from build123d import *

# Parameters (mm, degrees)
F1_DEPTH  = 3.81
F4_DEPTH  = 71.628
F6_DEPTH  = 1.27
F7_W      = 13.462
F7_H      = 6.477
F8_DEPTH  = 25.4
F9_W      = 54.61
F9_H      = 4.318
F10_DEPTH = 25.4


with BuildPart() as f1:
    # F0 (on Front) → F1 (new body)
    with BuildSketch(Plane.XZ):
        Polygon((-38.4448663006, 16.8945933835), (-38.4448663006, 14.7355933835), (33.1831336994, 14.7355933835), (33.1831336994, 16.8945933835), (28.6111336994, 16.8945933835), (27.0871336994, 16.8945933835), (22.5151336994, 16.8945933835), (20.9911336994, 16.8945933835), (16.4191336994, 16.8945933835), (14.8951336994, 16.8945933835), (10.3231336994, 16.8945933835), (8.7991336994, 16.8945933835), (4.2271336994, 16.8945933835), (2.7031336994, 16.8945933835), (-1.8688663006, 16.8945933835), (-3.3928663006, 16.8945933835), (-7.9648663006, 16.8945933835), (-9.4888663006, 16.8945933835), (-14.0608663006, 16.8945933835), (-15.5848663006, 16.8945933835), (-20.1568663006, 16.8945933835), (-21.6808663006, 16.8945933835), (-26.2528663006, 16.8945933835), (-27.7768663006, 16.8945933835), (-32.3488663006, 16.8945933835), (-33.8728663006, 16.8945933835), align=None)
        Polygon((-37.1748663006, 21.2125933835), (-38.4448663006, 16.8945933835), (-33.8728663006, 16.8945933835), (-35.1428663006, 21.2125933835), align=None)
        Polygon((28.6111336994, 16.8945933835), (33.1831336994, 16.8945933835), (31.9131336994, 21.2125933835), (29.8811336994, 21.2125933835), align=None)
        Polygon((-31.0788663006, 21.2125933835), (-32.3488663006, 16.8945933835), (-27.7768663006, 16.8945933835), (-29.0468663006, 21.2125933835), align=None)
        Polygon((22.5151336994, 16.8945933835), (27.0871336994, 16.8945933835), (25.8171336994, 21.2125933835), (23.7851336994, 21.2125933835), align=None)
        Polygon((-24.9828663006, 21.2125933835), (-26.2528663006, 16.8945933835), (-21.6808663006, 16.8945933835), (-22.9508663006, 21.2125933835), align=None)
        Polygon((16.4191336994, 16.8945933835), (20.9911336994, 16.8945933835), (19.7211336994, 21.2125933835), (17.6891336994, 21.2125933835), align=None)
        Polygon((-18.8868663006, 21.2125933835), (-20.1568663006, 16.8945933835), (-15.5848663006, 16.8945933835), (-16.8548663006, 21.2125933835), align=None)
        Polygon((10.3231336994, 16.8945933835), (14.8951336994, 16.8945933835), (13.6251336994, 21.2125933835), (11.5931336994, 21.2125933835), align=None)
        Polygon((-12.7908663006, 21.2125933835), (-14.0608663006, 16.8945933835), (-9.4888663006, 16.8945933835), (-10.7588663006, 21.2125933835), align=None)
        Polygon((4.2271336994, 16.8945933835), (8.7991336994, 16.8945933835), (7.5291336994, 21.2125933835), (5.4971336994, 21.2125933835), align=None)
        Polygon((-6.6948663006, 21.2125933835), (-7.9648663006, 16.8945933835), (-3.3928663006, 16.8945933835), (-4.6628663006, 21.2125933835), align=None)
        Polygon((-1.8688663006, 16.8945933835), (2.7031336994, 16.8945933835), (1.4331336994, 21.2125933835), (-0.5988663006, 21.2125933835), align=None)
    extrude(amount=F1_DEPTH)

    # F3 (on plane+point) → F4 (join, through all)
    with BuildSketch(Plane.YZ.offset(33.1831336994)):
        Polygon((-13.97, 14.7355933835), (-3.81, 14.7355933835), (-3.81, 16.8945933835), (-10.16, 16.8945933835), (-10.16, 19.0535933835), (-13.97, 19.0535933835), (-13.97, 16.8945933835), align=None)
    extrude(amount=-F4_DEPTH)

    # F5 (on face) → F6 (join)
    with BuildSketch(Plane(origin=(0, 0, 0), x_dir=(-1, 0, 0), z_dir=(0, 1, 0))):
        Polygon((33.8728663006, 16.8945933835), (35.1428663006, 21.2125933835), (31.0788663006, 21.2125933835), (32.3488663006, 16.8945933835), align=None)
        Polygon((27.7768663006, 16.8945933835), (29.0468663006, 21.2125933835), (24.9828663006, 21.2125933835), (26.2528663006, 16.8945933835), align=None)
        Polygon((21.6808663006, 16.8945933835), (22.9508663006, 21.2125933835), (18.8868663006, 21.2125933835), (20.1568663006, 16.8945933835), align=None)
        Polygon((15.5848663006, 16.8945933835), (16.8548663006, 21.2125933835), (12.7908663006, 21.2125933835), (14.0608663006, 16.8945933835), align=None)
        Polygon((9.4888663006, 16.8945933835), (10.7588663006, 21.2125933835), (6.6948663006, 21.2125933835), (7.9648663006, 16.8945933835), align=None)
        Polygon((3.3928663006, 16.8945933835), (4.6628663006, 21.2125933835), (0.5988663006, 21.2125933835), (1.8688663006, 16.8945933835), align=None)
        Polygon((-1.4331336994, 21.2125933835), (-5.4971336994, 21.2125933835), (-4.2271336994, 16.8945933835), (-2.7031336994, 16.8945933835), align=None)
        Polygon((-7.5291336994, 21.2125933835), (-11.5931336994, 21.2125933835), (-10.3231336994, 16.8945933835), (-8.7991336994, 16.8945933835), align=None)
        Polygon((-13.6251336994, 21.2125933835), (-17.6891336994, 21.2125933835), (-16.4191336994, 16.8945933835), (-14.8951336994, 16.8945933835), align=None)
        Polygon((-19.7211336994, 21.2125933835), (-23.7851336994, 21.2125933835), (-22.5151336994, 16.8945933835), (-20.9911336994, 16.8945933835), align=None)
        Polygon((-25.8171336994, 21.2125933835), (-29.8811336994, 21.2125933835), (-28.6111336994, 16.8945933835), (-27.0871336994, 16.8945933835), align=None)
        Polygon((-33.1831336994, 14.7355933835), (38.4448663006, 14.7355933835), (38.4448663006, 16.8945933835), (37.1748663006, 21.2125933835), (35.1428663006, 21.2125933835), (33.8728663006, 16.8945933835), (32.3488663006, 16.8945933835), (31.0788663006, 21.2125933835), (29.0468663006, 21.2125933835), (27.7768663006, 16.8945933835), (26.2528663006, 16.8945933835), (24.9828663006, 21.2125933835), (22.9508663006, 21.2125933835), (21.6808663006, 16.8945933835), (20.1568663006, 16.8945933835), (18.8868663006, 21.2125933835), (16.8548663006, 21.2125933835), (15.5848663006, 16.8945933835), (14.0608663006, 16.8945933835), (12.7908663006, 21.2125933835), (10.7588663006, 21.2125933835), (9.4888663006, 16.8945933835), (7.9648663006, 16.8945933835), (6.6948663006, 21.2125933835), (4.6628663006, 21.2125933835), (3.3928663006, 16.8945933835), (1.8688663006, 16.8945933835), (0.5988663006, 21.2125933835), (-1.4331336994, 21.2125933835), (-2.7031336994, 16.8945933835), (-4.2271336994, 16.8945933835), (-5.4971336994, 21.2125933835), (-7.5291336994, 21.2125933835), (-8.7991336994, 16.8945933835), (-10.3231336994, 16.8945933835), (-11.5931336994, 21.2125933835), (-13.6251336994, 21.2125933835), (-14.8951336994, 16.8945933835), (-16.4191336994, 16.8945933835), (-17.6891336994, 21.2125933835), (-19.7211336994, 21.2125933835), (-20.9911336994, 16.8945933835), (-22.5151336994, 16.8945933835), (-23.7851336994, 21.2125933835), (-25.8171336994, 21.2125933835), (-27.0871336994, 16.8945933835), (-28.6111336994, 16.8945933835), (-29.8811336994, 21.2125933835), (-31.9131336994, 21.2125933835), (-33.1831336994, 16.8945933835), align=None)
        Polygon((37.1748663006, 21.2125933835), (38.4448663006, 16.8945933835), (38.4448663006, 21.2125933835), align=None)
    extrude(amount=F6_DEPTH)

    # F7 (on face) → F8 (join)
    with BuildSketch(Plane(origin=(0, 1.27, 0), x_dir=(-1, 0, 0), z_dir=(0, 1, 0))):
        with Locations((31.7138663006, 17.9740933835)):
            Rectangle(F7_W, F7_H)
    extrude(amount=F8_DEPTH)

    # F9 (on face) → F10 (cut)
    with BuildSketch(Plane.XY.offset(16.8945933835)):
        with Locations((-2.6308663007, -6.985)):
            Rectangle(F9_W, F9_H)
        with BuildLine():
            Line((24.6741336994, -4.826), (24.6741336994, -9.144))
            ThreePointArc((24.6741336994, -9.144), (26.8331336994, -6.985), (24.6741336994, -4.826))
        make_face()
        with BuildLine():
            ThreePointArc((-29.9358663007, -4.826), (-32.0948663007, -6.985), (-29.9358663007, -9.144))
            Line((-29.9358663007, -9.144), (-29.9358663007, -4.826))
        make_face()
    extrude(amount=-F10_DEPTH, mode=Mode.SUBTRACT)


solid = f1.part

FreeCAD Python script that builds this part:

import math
import FreeCAD as App
import Part
import Sketcher
from FreeCAD import Vector
Q = App.Units.Quantity


def add_polygon(sketch, points):
    """Adds a closed chain of lines whose ends are joined by coincident constraints."""
    first, n = sketch.GeometryCount, len(points)
    for a, b in zip(points, points[1:] + points[:1]):
        sketch.addGeometry(Part.LineSegment(App.Vector(*a, 0), App.Vector(*b, 0)), False)
    for i in range(n):
        sketch.addConstraint(Sketcher.Constraint("Coincident", first + i, 2, first + (i + 1) % n, 1))

doc = App.newDocument("Part")
body = doc.addObject("PartDesign::Body", "Body")

# Sketch on XZ plane
sketch1 = body.newObject("Sketcher::SketchObject", "Sketch")
sketch1.AttachmentSupport = (doc.getObject("XZ_Plane"), [""])
sketch1.MapMode = "FlatFace"
add_polygon(sketch1, [(-38.4, 16.9), (-38.4, 14.7), (33.2, 14.7), (33.2, 16.9), (31.9, 21.2), (29.9, 21.2), (28.6, 16.9), (27.1, 16.9), (25.8, 21.2), (23.8, 21.2), (22.5, 16.9), (21, 16.9), (19.7, 21.2), (17.7, 21.2), (16.4, 16.9), (14.9, 16.9), (13.6, 21.2), (11.6, 21.2), (10.3, 16.9), (8.8, 16.9), (7.5, 21.2), (5.5, 21.2), (4.2, 16.9), (2.7, 16.9), (1.4, 21.2), (-0.6, 21.2), (-1.9, 16.9), (-3.4, 16.9), (-4.7, 21.2), (-6.7, 21.2), (-8, 16.9), (-9.5, 16.9), (-10.8, 21.2), (-12.8, 21.2), (-14.1, 16.9), (-15.6, 16.9), (-16.9, 21.2), (-18.9, 21.2), (-20.2, 16.9), (-21.7, 16.9), (-23, 21.2), (-25, 21.2), (-26.3, 16.9), (-27.8, 16.9), (-29, 21.2), (-31.1, 21.2), (-32.3, 16.9), (-33.9, 16.9), (-35.1, 21.2), (-37.2, 21.2)])  # lines 0-49
sketch1.addConstraint([
    Sketcher.Constraint("Vertical", 0),
    Sketcher.Constraint("Horizontal", 1),
    Sketcher.Constraint("Vertical", 2),
    Sketcher.Constraint("Horizontal", 4),
    Sketcher.Constraint("Horizontal", 6),
    Sketcher.Constraint("Horizontal", 8),
    Sketcher.Constraint("Horizontal", 10),
    Sketcher.Constraint("Horizontal", 12),
    Sketcher.Constraint("Horizontal", 14),
    Sketcher.Constraint("Horizontal", 16),
    Sketcher.Constraint("Horizontal", 18),
    Sketcher.Constraint("Horizontal", 20),
    Sketcher.Constraint("Horizontal", 22),
    Sketcher.Constraint("Horizontal", 24),
    Sketcher.Constraint("Horizontal", 26),
    Sketcher.Constraint("Horizontal", 28),
    Sketcher.Constraint("Horizontal", 30),
    Sketcher.Constraint("Horizontal", 32),
    Sketcher.Constraint("Horizontal", 34),
    Sketcher.Constraint("Horizontal", 36),
    Sketcher.Constraint("Horizontal", 38),
    Sketcher.Constraint("Horizontal", 40),
    Sketcher.Constraint("Horizontal", 42),
    Sketcher.Constraint("Horizontal", 44),
    Sketcher.Constraint("Horizontal", 46),
    Sketcher.Constraint("Horizontal", 48),
    Sketcher.Constraint("Parallel", 3, 7),
    Sketcher.Constraint("Parallel", 5, 9),
    Sketcher.Constraint("Parallel", 7, 11),
    Sketcher.Constraint("Parallel", 9, 13),
    Sketcher.Constraint("Parallel", 11, 15),
    Sketcher.Constraint("Parallel", 13, 17),
    Sketcher.Constraint("Parallel", 15, 19),
    Sketcher.Constraint("Parallel", 17, 21),
    Sketcher.Constraint("Parallel", 19, 23),
    Sketcher.Constraint("Parallel", 21, 25),
    Sketcher.Constraint("Parallel", 23, 27),
    Sketcher.Constraint("Parallel", 25, 29),
    Sketcher.Constraint("Parallel", 27, 31),
    Sketcher.Constraint("Parallel", 29, 33),
    Sketcher.Constraint("Parallel", 31, 35),
    Sketcher.Constraint("Parallel", 33, 37),
    Sketcher.Constraint("Parallel", 35, 39),
    Sketcher.Constraint("Parallel", 37, 41),
    Sketcher.Constraint("Parallel", 39, 43),
    Sketcher.Constraint("Parallel", 41, 45),
    Sketcher.Constraint("Parallel", 43, 47),
    Sketcher.Constraint("Parallel", 45, 49),
    Sketcher.Constraint("Horizontal", 2, 2, 5, 2),
    Sketcher.Constraint("Horizontal", 4, 2, 7, 2),
    Sketcher.Constraint("Horizontal", 6, 2, 9, 2),
    Sketcher.Constraint("Horizontal", 8, 2, 11, 2),
    Sketcher.Constraint("Horizontal", 10, 2, 13, 2),
    Sketcher.Constraint("Horizontal", 12, 2, 15, 2),
    Sketcher.Constraint("Horizontal", 14, 2, 17, 2),
    Sketcher.Constraint("Horizontal", 16, 2, 19, 2),
    Sketcher.Constraint("Horizontal", 18, 2, 21, 2),
    Sketcher.Constraint("Horizontal", 20, 2, 23, 2),
    Sketcher.Constraint("Horizontal", 22, 2, 25, 2),
    Sketcher.Constraint("Horizontal", 24, 2, 27, 2),
    Sketcher.Constraint("Horizontal", 26, 2, 29, 2),
    Sketcher.Constraint("Horizontal", 28, 2, 31, 2),
    Sketcher.Constraint("Horizontal", 30, 2, 33, 2),
    Sketcher.Constraint("Horizontal", 32, 2, 35, 2),
    Sketcher.Constraint("Horizontal", 34, 2, 37, 2),
    Sketcher.Constraint("Horizontal", 36, 2, 39, 2),
    Sketcher.Constraint("Horizontal", 38, 2, 41, 2),
    Sketcher.Constraint("Horizontal", 40, 2, 43, 2),
    Sketcher.Constraint("Horizontal", 42, 2, 45, 2),
    Sketcher.Constraint("Horizontal", 44, 2, 47, 2),
    Sketcher.Constraint("Horizontal", 46, 2, 49, 2),
    Sketcher.Constraint("Equal", 4, 8),
    Sketcher.Constraint("Equal", 6, 10),
    Sketcher.Constraint("Equal", 8, 12),
    Sketcher.Constraint("Equal", 10, 14),
    Sketcher.Constraint("Equal", 12, 16),
    Sketcher.Constraint("Equal", 14, 18),
    Sketcher.Constraint("Equal", 16, 20),
    Sketcher.Constraint("Equal", 18, 22),
    Sketcher.Constraint("Equal", 20, 24),
    Sketcher.Constraint("Equal", 22, 26),
    Sketcher.Constraint("Equal", 24, 28),
    Sketcher.Constraint("Equal", 26, 30),
    Sketcher.Constraint("Equal", 28, 32),
    Sketcher.Constraint("Equal", 30, 34),
    Sketcher.Constraint("Equal", 32, 36),
    Sketcher.Constraint("Equal", 34, 38),
    Sketcher.Constraint("Equal", 36, 40),
    Sketcher.Constraint("Equal", 38, 42),
    Sketcher.Constraint("Equal", 40, 44),
    Sketcher.Constraint("Equal", 42, 46),
    Sketcher.Constraint("Equal", 44, 48),
    Sketcher.Constraint("Equal", 3, 5),
    Sketcher.Constraint("DistanceX", 1, 1, 1, 2, Q("2.82 in")),
    Sketcher.Constraint("DistanceX", 4, 2, 4, 1, Q("0.08 in")),
    Sketcher.Constraint("DistanceX", 6, 2, 6, 1, Q("0.06 in")),
    Sketcher.Constraint("DistanceY", 0, 2, 0, 1, Q("0.085 in")),
    Sketcher.Constraint("DistanceY", 2, 2, 3, 2, Q("0.17 in")),
    Sketcher.Constraint("DistanceX", 0, 2, -1, 1, Q("38.444866 mm")),
    Sketcher.Constraint("DistanceY", -1, 1, 0, 2, Q("14.735593 mm")),
])
pad1 = body.newObject("PartDesign::Pad", "Pad")
pad1.Profile = sketch1
pad1.Length = Q("0.15 in")

# Sketch on YZ plane
sketch2 = body.newObject("Sketcher::SketchObject", "Sketch001")
sketch2.AttachmentSupport = (doc.getObject("YZ_Plane"), [""])
sketch2.MapMode = "FlatFace"
sketch2.AttachmentOffset = App.Placement(Vector(0, 0, 33.183134), App.Rotation())
add_polygon(sketch2, [(-14, 14.7), (-3.8, 14.7), (-3.8, 16.9), (-10.2, 16.9), (-10.2, 19.1), (-14, 19.1)])  # lines 0-5
sketch2.addConstraint([
    Sketcher.Constraint("Horizontal", 0),
    Sketcher.Constraint("Vertical", 1),
    Sketcher.Constraint("Horizontal", 2),
    Sketcher.Constraint("Vertical", 3),
    Sketcher.Constraint("Horizontal", 4),
    Sketcher.Constraint("Vertical", 5),
    Sketcher.Constraint("Equal", 1, 3),
    Sketcher.Constraint("DistanceX", 0, 1, 0, 2, Q("0.4 in")),
    Sketcher.Constraint("DistanceX", 2, 2, 2, 1, Q("0.25 in")),
    Sketcher.Constraint("DistanceY", 5, 2, 5, 1, Q("0.17 in")),
    Sketcher.Constraint("DistanceX", 2, 2, -1, 1, Q("0.4 in")),
    Sketcher.Constraint("DistanceY", -1, 1, 0, 2, Q("14.735593 mm")),
])
pad2 = body.newObject("PartDesign::Pad", "Pad001")
pad2.Profile = sketch2
pad2.Length = Q("2.82 in")
pad2.Reversed = True

# Sketch on XZ plane
sketch3 = body.newObject("Sketcher::SketchObject", "Sketch002")
sketch3.AttachmentSupport = (doc.getObject("XZ_Plane"), [""])
sketch3.MapMode = "FlatFace"
add_polygon(sketch3, [(31.9, 21.2), (33.2, 16.9), (33.2, 14.7), (-38.4, 14.7), (-38.4, 21.2)])  # lines 0-4
sketch3.addConstraint([
    Sketcher.Constraint("Vertical", 1),
    Sketcher.Constraint("Horizontal", 2),
    Sketcher.Constraint("Vertical", 3),
    Sketcher.Constraint("Horizontal", 4),
    Sketcher.Constraint("DistanceX", 2, 2, 2, 1, Q("2.82 in")),
    Sketcher.Constraint("DistanceX", 4, 1, 4, 2, Q("2.77 in")),
    Sketcher.Constraint("DistanceY", 1, 2, 1, 1, Q("0.085 in")),
    Sketcher.Constraint("DistanceY", 3, 1, 3, 2, Q("0.255 in")),
    Sketcher.Constraint("DistanceX", -1, 1, 0, 2, Q("33.183134 mm")),
    Sketcher.Constraint("DistanceY", -1, 1, 0, 2, Q("16.894593 mm")),
])
pad3 = body.newObject("PartDesign::Pad", "Pad002")
pad3.Profile = sketch3
pad3.Length = Q("0.05 in")
pad3.Reversed = True

# Sketch on XZ plane
sketch4 = body.newObject("Sketcher::SketchObject", "Sketch003")
sketch4.AttachmentSupport = (doc.getObject("XZ_Plane"), [""])
sketch4.MapMode = "FlatFace"
sketch4.AttachmentOffset = App.Placement(Vector(0, 0, -0.05 * 25.4), App.Rotation())
add_polygon(sketch4, [(-25, 21), (-25, 15), (-38, 15), (-38, 21)])  # lines 0-3
sketch4.addConstraint([
    Sketcher.Constraint("Vertical", 0),
    Sketcher.Constraint("Horizontal", 1),
    Sketcher.Constraint("Vertical", 2),
    Sketcher.Constraint("Horizontal", 3),
    Sketcher.Constraint("DistanceX", 1, 2, 1, 1, Q("0.53 in")),
    Sketcher.Constraint("DistanceY", 0, 2, 0, 1, Q("0.255 in")),
    Sketcher.Constraint("DistanceX", 0, 2, -1, 1, Q("24.982866 mm")),
    Sketcher.Constraint("DistanceY", -1, 1, 0, 2, Q("14.735593 mm")),
])
pad4 = body.newObject("PartDesign::Pad", "Pad003")
pad4.Profile = sketch4
pad4.Length = Q("1 in")
pad4.Reversed = True

# Sketch on XY plane
sketch5 = body.newObject("Sketcher::SketchObject", "Sketch004")
sketch5.AttachmentSupport = (doc.getObject("XY_Plane"), [""])
sketch5.MapMode = "FlatFace"
sketch5.AttachmentOffset = App.Placement(Vector(0, 0, 16.894593), App.Rotation())
sketch5.addGeometry([
    Part.LineSegment(Vector(-29.9, -9.1, 0), Vector(24.7, -9.1, 0)),
    Part.ArcOfCircle(Part.Circle(Vector(24.7, -7, 0), Vector(0, 0, 1), 2.2), math.radians(-90), math.radians(90)),
    Part.LineSegment(Vector(24.7, -4.8, 0), Vector(-29.9, -4.8, 0)),
    Part.ArcOfCircle(Part.Circle(Vector(-29.9, -7, 0), Vector(0, 0, 1), 2.2), math.radians(90), math.radians(270)),
], False)
sketch5.addConstraint([
    Sketcher.Constraint("Tangent", 0, 2, 1, 1),
    Sketcher.Constraint("Tangent", 1, 2, 2, 1),
    Sketcher.Constraint("Tangent", 2, 2, 3, 1),
    Sketcher.Constraint("Tangent", 3, 2, 0, 1),
    Sketcher.Constraint("Horizontal", 0),
    Sketcher.Constraint("Horizontal", 2),
    Sketcher.Constraint("Radius", 1, Q("0.085 in")),
    Sketcher.Constraint("DistanceX", 0, 1, 0, 2, Q("2.15 in")),
    Sketcher.Constraint("DistanceY", 0, 2, -1, 1, Q("0.36 in")),
    Sketcher.Constraint("DistanceX", -1, 1, 1, 3, Q("24.674134 mm")),
])
pocket1 = body.newObject("PartDesign::Pocket", "Pocket")
pocket1.Profile = sketch5
pocket1.Length = Q("1 in")

doc.recompute()
